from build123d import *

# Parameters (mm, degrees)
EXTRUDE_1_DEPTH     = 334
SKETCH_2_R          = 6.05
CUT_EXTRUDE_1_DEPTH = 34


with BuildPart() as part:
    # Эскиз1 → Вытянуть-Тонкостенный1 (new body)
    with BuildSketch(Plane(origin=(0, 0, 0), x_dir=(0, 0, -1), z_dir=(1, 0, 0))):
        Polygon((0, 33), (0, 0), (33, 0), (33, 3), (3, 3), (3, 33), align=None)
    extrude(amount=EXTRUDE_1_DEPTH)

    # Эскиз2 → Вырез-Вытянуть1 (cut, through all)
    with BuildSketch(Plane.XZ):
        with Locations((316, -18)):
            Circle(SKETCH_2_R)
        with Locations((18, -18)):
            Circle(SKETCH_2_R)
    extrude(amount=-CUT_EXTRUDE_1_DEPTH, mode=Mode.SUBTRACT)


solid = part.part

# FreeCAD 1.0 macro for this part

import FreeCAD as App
import Part
import Sketcher
from FreeCAD import Vector

doc = App.newDocument("Part")
body = doc.addObject("PartDesign::Body", "Body")

# Sketch on YZ plane
sketch1 = doc.addObject("Sketcher::SketchObject", "Sketch")
body.addObject(sketch1)
sketch1.AttachmentSupport = (doc.YZ_Plane, [""])
sketch1.MapMode = "FlatFace"
sketch1.addGeometry([
    Part.LineSegment(Vector(33, 0, 0), Vector(0, 0, 0)),  # 0
    Part.LineSegment(Vector(0, 0, 0), Vector(0, -33, 0)),  # 1
    Part.LineSegment(Vector(0, -33, 0), Vector(3, -33, 0)),  # 2
    Part.LineSegment(Vector(3, -33, 0), Vector(3, -3, 0)),  # 3
    Part.LineSegment(Vector(3, -3, 0), Vector(33, -3, 0)),  # 4
    Part.LineSegment(Vector(33, -3, 0), Vector(33, 0, 0)),  # 5
], False)
sketch1.addConstraint([
    Sketcher.Constraint("Coincident", 0, 2, 1, 1),
    Sketcher.Constraint("Coincident", 1, 2, 2, 1),
    Sketcher.Constraint("Coincident", 2, 2, 3, 1),
    Sketcher.Constraint("Coincident", 3, 2, 4, 1),
    Sketcher.Constraint("Coincident", 4, 2, 5, 1),
    Sketcher.Constraint("Coincident", 5, 2, 0, 1),
    Sketcher.Constraint("Horizontal", 0),
    Sketcher.Constraint("Vertical", 1),
    Sketcher.Constraint("Horizontal", 2),
    Sketcher.Constraint("Vertical", 3),
    Sketcher.Constraint("Horizontal", 4),
    Sketcher.Constraint("Vertical", 5),
    Sketcher.Constraint("Coincident", 0, 2, -1, 1),
    Sketcher.Constraint("Equal", 0, 1),
    Sketcher.Constraint("Equal", 4, 3),
    Sketcher.Constraint("DistanceX", 0, 2, 0, 1, 33.0),
    Sketcher.Constraint("DistanceX", 2, 1, 2, 2, 3.0),
])
pad1 = doc.addObject("PartDesign::Pad", "Pad")
body.addObject(pad1)
pad1.Profile = sketch1
pad1.Length = 334

# Sketch on XZ plane
sketch2 = doc.addObject("Sketcher::SketchObject", "Sketch001")
body.addObject(sketch2)
sketch2.AttachmentSupport = (doc.XZ_Plane, [""])
sketch2.MapMode = "FlatFace"
sketch2.addGeometry([
    Part.Circle(Vector(316, -18, 0), Vector(0, 0, 1), 6.05),
    Part.Circle(Vector(18, -18, 0), Vector(0, 0, 1), 6.05),
], False)
sketch2.addConstraint([
    Sketcher.Constraint("Equal", 0, 1),
    Sketcher.Constraint("Horizontal", 0, 3, 1, 3),
    Sketcher.Constraint("Diameter", 0, 12.1),
    Sketcher.Constraint("DistanceX", -1, 1, 0, 3, 316.0),
    Sketcher.Constraint("DistanceY", 0, 3, -1, 1, 18.0),
    Sketcher.Constraint("DistanceX", -1, 1, 1, 3, 18.0),
])
pocket1 = doc.addObject("PartDesign::Pocket", "Pocket")
body.addObject(pocket1)
pocket1.Profile = sketch2
pocket1.Type = "ThroughAll"

doc.recompute()
